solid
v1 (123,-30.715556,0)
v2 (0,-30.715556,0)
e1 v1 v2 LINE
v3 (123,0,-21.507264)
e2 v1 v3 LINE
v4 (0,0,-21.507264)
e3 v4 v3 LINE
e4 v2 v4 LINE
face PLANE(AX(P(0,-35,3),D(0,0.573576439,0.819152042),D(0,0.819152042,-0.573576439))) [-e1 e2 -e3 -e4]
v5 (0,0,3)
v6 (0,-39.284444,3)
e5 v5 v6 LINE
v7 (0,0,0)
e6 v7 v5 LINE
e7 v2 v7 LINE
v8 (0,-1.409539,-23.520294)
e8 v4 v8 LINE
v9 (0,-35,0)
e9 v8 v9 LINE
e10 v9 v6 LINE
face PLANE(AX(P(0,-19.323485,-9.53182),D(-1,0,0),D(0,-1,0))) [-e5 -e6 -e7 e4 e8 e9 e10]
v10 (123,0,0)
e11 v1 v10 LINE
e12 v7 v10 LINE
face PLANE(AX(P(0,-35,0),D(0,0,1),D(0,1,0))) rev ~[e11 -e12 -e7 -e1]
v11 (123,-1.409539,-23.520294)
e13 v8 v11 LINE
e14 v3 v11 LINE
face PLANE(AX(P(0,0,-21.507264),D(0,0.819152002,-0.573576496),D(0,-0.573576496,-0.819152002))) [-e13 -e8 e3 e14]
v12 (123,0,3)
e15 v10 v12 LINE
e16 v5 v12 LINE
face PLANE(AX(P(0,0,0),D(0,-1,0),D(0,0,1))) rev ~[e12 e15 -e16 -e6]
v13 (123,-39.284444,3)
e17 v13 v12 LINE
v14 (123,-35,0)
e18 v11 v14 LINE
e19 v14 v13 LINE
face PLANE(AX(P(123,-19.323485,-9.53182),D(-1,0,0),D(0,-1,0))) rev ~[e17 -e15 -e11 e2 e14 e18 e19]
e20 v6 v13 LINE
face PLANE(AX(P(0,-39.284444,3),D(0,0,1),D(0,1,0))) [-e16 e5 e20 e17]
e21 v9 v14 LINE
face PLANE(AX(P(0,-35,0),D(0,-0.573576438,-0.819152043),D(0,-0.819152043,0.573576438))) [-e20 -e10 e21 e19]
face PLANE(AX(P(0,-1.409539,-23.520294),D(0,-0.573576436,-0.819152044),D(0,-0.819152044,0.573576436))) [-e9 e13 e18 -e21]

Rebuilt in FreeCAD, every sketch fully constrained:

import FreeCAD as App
import Part
import Sketcher
from FreeCAD import Vector
Q = App.Units.Quantity


def add_polygon(sketch, points):
    """Adds a closed chain of lines whose ends are joined by coincident constraints."""
    first, n = sketch.GeometryCount, len(points)
    for a, b in zip(points, points[1:] + points[:1]):
        sketch.addGeometry(Part.LineSegment(App.Vector(*a, 0), App.Vector(*b, 0)), False)
    for i in range(n):
        sketch.addConstraint(Sketcher.Constraint("Coincident", first + i, 2, first + (i + 1) % n, 1))

doc = App.newDocument("Part")
body = doc.addObject("PartDesign::Body", "Body")

# Sketch on YZ plane
sketch1 = body.newObject("Sketcher::SketchObject", "Sketch")
sketch1.AttachmentSupport = (doc.getObject("YZ_Plane"), [""])
sketch1.MapMode = "FlatFace"
add_polygon(sketch1, [(-35, 3), (-35, 0), (0, 0), (0, 3)])  # lines 0-3
sketch1.addConstraint([
    Sketcher.Constraint("Vertical", 0),
    Sketcher.Constraint("Horizontal", 1),
    Sketcher.Constraint("Vertical", 2),
    Sketcher.Constraint("Horizontal", 3),
    Sketcher.Constraint("Coincident", 1, 2, -1, 1),
    Sketcher.Constraint("DistanceX", 1, 1, 1, 2, 35.0),
    Sketcher.Constraint("DistanceY", 0, 2, 0, 1, 3.0),
])
pad1 = body.newObject("PartDesign::Pad", "Pad")
pad1.Profile = sketch1
pad1.Length = 123

# Sketch on YZ plane
sketch2 = body.newObject("Sketcher::SketchObject", "Sketch001")
sketch2.AttachmentSupport = (doc.getObject("YZ_Plane"), [""])
sketch2.MapMode = "FlatFace"
add_polygon(sketch2, [(-35, 0), (-39.284444, 3), (-35, 3), (0, -21.507264), (-1.409539, -23.520294)])  # lines 0-4
sketch2.addConstraint([
    Sketcher.Constraint("Horizontal", 1),
    Sketcher.Constraint("PointOnObject", 2, 2, -2),
    Sketcher.Constraint("PointOnObject", 4, 2, -1),
    Sketcher.Constraint("Parallel", 0, 2),
    Sketcher.Constraint("Perpendicular", 2, 3),
    Sketcher.Constraint("Perpendicular", 3, 4),
    Sketcher.Constraint("Vertical", 1, 2, 4, 2),
    Sketcher.Constraint("Angle", 0, Q("145 deg")),
    Sketcher.Constraint("DistanceY", -1, 1, 0, 2, 3.0),
    Sketcher.Constraint("DistanceX", 1, 2, -1, 1, 35.0),
])
pad2 = body.newObject("PartDesign::Pad", "Pad001")
pad2.Profile = sketch2
pad2.Length = 123

doc.recompute()
